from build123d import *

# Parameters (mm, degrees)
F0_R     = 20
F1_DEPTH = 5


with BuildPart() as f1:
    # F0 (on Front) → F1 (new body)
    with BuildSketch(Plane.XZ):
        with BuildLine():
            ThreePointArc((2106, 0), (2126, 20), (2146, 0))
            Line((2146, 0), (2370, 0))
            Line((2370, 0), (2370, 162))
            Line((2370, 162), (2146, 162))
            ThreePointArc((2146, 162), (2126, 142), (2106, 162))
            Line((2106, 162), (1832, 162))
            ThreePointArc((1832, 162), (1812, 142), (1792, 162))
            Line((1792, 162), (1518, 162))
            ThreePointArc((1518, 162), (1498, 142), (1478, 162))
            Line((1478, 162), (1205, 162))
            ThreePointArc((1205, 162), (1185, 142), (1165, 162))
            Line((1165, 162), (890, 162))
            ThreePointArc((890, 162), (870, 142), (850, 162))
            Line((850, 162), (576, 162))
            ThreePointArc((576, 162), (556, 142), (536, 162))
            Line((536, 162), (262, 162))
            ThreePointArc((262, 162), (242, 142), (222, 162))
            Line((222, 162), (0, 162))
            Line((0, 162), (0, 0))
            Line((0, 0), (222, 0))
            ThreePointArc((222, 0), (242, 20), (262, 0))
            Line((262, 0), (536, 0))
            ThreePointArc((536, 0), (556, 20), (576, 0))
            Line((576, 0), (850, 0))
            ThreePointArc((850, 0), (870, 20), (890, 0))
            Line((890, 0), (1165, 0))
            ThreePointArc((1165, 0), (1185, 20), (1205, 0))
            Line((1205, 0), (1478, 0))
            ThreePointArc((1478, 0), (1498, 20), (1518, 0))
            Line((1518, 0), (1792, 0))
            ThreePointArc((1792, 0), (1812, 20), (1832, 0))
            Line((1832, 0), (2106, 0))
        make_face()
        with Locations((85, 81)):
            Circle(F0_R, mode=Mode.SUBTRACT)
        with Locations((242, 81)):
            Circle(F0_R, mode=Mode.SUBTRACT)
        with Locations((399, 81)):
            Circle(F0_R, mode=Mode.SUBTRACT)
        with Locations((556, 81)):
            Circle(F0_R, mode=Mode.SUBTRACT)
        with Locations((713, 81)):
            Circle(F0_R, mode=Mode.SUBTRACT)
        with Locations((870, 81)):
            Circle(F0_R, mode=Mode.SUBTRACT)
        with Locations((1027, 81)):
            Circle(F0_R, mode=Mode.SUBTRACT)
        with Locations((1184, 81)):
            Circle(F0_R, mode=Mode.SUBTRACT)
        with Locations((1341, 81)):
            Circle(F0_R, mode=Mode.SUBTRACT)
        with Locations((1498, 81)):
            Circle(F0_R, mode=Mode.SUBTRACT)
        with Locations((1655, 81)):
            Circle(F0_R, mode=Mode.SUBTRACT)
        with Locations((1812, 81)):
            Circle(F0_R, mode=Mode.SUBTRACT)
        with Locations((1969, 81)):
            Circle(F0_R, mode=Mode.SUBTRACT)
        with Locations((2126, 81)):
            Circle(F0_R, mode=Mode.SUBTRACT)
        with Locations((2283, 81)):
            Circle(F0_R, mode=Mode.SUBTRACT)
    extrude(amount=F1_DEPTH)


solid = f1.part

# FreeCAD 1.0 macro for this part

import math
import FreeCAD as App
import Part
import Sketcher
from FreeCAD import Vector
Q = App.Units.Quantity

doc = App.newDocument("Part")
body = doc.addObject("PartDesign::Body", "Body")

# Sketch on XZ plane
sketch1 = body.newObject("Sketcher::SketchObject", "Sketch")
sketch1.AttachmentSupport = (doc.getObject("XZ_Plane"), [""])
sketch1.MapMode = "FlatFace"
sketch1.addGeometry(Part.ArcOfCircle(Part.Circle(Vector(2126, 0, 0), Vector(0, 0, 1), 20), math.radians(0), math.radians(180)), False)
sketch1.addGeometry(Part.LineSegment(Vector(2146, 0, 0), Vector(2370, 0, 0)), False)
sketch1.addGeometry(Part.LineSegment(Vector(2370, 0, 0), Vector(2370, 162, 0)), False)
sketch1.addGeometry(Part.LineSegment(Vector(2370, 162, 0), Vector(2146, 162, 0)), False)
sketch1.addGeometry(Part.ArcOfCircle(Part.Circle(Vector(2126, 162, 0), Vector(0, 0, 1), 20), math.radians(180), math.radians(360)), False)
sketch1.addGeometry(Part.LineSegment(Vector(2106, 162, 0), Vector(1832, 162, 0)), False)
sketch1.addGeometry(Part.ArcOfCircle(Part.Circle(Vector(1812, 162, 0), Vector(0, 0, 1), 20), math.radians(180), math.radians(360)), False)
sketch1.addGeometry(Part.LineSegment(Vector(1792, 162, 0), Vector(1518, 162, 0)), False)
sketch1.addGeometry(Part.ArcOfCircle(Part.Circle(Vector(1498, 162, 0), Vector(0, 0, 1), 20), math.radians(180), math.radians(360)), False)
sketch1.addGeometry(Part.LineSegment(Vector(1478, 162, 0), Vector(1205, 162, 0)), False)
sketch1.addGeometry(Part.ArcOfCircle(Part.Circle(Vector(1185, 162, 0), Vector(0, 0, 1), 20), math.radians(180), math.radians(360)), False)
sketch1.addGeometry(Part.LineSegment(Vector(1165, 162, 0), Vector(890, 162, 0)), False)
sketch1.addGeometry(Part.ArcOfCircle(Part.Circle(Vector(870, 162, 0), Vector(0, 0, 1), 20), math.radians(180), math.radians(360)), False)
sketch1.addGeometry(Part.LineSegment(Vector(850, 162, 0), Vector(576, 162, 0)), False)
sketch1.addGeometry(Part.ArcOfCircle(Part.Circle(Vector(556, 162, 0), Vector(0, 0, 1), 20), math.radians(180), math.radians(360)), False)
sketch1.addGeometry(Part.LineSegment(Vector(536, 162, 0), Vector(262, 162, 0)), False)
sketch1.addGeometry(Part.ArcOfCircle(Part.Circle(Vector(242, 162, 0), Vector(0, 0, 1), 20), math.radians(180), math.radians(360)), False)
sketch1.addGeometry(Part.LineSegment(Vector(222, 162, 0), Vector(0, 162, 0)), False)
sketch1.addGeometry(Part.LineSegment(Vector(0, 162, 0), Vector(0, 0, 0)), False)
sketch1.addGeometry(Part.LineSegment(Vector(0, 0, 0), Vector(222, 0, 0)), False)
sketch1.addGeometry(Part.ArcOfCircle(Part.Circle(Vector(242, 0, 0), Vector(0, 0, 1), 20), math.radians(0), math.radians(180)), False)
sketch1.addGeometry(Part.LineSegment(Vector(262, 0, 0), Vector(536, 0, 0)), False)
sketch1.addGeometry(Part.ArcOfCircle(Part.Circle(Vector(556, 0, 0), Vector(0, 0, 1), 20), math.radians(0), math.radians(180)), False)
sketch1.addGeometry(Part.LineSegment(Vector(576, 0, 0), Vector(850, 0, 0)), False)
sketch1.addGeometry(Part.ArcOfCircle(Part.Circle(Vector(870, 0, 0), Vector(0, 0, 1), 20), math.radians(0), math.radians(180)), False)
sketch1.addGeometry(Part.LineSegment(Vector(890, 0, 0), Vector(1165, 0, 0)), False)
sketch1.addGeometry(Part.ArcOfCircle(Part.Circle(Vector(1185, 0, 0), Vector(0, 0, 1), 20), math.radians(0), math.radians(180)), False)
sketch1.addGeometry(Part.LineSegment(Vector(1205, 0, 0), Vector(1478, 0, 0)), False)
sketch1.addGeometry(Part.ArcOfCircle(Part.Circle(Vector(1498, 0, 0), Vector(0, 0, 1), 20), math.radians(0), math.radians(180)), False)
sketch1.addGeometry(Part.LineSegment(Vector(1518, 0, 0), Vector(1792, 0, 0)), False)
sketch1.addGeometry(Part.ArcOfCircle(Part.Circle(Vector(1812, 0, 0), Vector(0, 0, 1), 20), math.radians(0), math.radians(180)), False)
sketch1.addGeometry(Part.LineSegment(Vector(1832, 0, 0), Vector(2106, 0, 0)), False)
sketch1.addGeometry(Part.Circle(Vector(85, 81, 0), Vector(0, 0, 1), 20), False)
sketch1.addGeometry(Part.Circle(Vector(242, 81, 0), Vector(0, 0, 1), 20), False)
sketch1.addGeometry(Part.Circle(Vector(399, 81, 0), Vector(0, 0, 1), 20), False)
sketch1.addGeometry(Part.Circle(Vector(556, 81, 0), Vector(0, 0, 1), 20), False)
sketch1.addGeometry(Part.Circle(Vector(713, 81, 0), Vector(0, 0, 1), 20), False)
sketch1.addGeometry(Part.Circle(Vector(870, 81, 0), Vector(0, 0, 1), 20), False)
sketch1.addGeometry(Part.Circle(Vector(1027, 81, 0), Vector(0, 0, 1), 20), False)
sketch1.addGeometry(Part.Circle(Vector(1184, 81, 0), Vector(0, 0, 1), 20), False)
sketch1.addGeometry(Part.Circle(Vector(1341, 81, 0), Vector(0, 0, 1), 20), False)
sketch1.addGeometry(Part.Circle(Vector(1498, 81, 0), Vector(0, 0, 1), 20), False)
sketch1.addGeometry(Part.Circle(Vector(1655, 81, 0), Vector(0, 0, 1), 20), False)
sketch1.addGeometry(Part.Circle(Vector(1812, 81, 0), Vector(0, 0, 1), 20), False)
sketch1.addGeometry(Part.Circle(Vector(1969, 81, 0), Vector(0, 0, 1), 20), False)
sketch1.addGeometry(Part.Circle(Vector(2126, 81, 0), Vector(0, 0, 1), 20), False)
sketch1.addGeometry(Part.Circle(Vector(2283, 81, 0), Vector(0, 0, 1), 20), False)
sketch1.addConstraint(Sketcher.Constraint("Coincident", 0, 1, 1, 1))
sketch1.addConstraint(Sketcher.Constraint("Coincident", 1, 2, 2, 1))
sketch1.addConstraint(Sketcher.Constraint("Coincident", 2, 2, 3, 1))
sketch1.addConstraint(Sketcher.Constraint("Coincident", 3, 2, 4, 2))
sketch1.addConstraint(Sketcher.Constraint("Coincident", 4, 1, 5, 1))
sketch1.addConstraint(Sketcher.Constraint("Coincident", 5, 2, 6, 2))
sketch1.addConstraint(Sketcher.Constraint("Coincident", 6, 1, 7, 1))
sketch1.addConstraint(Sketcher.Constraint("Coincident", 7, 2, 8, 2))
sketch1.addConstraint(Sketcher.Constraint("Coincident", 8, 1, 9, 1))
sketch1.addConstraint(Sketcher.Constraint("Coincident", 9, 2, 10, 2))
sketch1.addConstraint(Sketcher.Constraint("Coincident", 10, 1, 11, 1))
sketch1.addConstraint(Sketcher.Constraint("Coincident", 11, 2, 12, 2))
sketch1.addConstraint(Sketcher.Constraint("Coincident", 12, 1, 13, 1))
sketch1.addConstraint(Sketcher.Constraint("Coincident", 13, 2, 14, 2))
sketch1.addConstraint(Sketcher.Constraint("Coincident", 14, 1, 15, 1))
sketch1.addConstraint(Sketcher.Constraint("Coincident", 15, 2, 16, 2))
sketch1.addConstraint(Sketcher.Constraint("Coincident", 16, 1, 17, 1))
sketch1.addConstraint(Sketcher.Constraint("Coincident", 17, 2, 18, 1))
sketch1.addConstraint(Sketcher.Constraint("Coincident", 18, 2, 19, 1))
sketch1.addConstraint(Sketcher.Constraint("Coincident", 19, 2, 20, 2))
sketch1.addConstraint(Sketcher.Constraint("Coincident", 20, 1, 21, 1))
sketch1.addConstraint(Sketcher.Constraint("Coincident", 21, 2, 22, 2))
sketch1.addConstraint(Sketcher.Constraint("Coincident", 22, 1, 23, 1))
sketch1.addConstraint(Sketcher.Constraint("Coincident", 23, 2, 24, 2))
sketch1.addConstraint(Sketcher.Constraint("Coincident", 24, 1, 25, 1))
sketch1.addConstraint(Sketcher.Constraint("Coincident", 25, 2, 26, 2))
sketch1.addConstraint(Sketcher.Constraint("Coincident", 26, 1, 27, 1))
sketch1.addConstraint(Sketcher.Constraint("Coincident", 27, 2, 28, 2))
sketch1.addConstraint(Sketcher.Constraint("Coincident", 28, 1, 29, 1))
sketch1.addConstraint(Sketcher.Constraint("Coincident", 29, 2, 30, 2))
sketch1.addConstraint(Sketcher.Constraint("Coincident", 30, 1, 31, 1))
sketch1.addConstraint(Sketcher.Constraint("Coincident", 31, 2, 0, 2))
sketch1.addConstraint(Sketcher.Constraint("Horizontal", 1))
sketch1.addConstraint(Sketcher.Constraint("Vertical", 2))
sketch1.addConstraint(Sketcher.Constraint("Horizontal", 3))
sketch1.addConstraint(Sketcher.Constraint("Horizontal", 5))
sketch1.addConstraint(Sketcher.Constraint("Horizontal", 7))
sketch1.addConstraint(Sketcher.Constraint("Horizontal", 9))
sketch1.addConstraint(Sketcher.Constraint("Horizontal", 11))
sketch1.addConstraint(Sketcher.Constraint("Horizontal", 13))
sketch1.addConstraint(Sketcher.Constraint("Horizontal", 15))
sketch1.addConstraint(Sketcher.Constraint("Horizontal", 17))
sketch1.addConstraint(Sketcher.Constraint("Vertical", 18))
sketch1.addConstraint(Sketcher.Constraint("Horizontal", 19))
sketch1.addConstraint(Sketcher.Constraint("Horizontal", 21))
sketch1.addConstraint(Sketcher.Constraint("Horizontal", 23))
sketch1.addConstraint(Sketcher.Constraint("Horizontal", 25))
sketch1.addConstraint(Sketcher.Constraint("Horizontal", 27))
sketch1.addConstraint(Sketcher.Constraint("Horizontal", 29))
sketch1.addConstraint(Sketcher.Constraint("Horizontal", 31))
sketch1.addConstraint(Sketcher.Constraint("Coincident", 18, 2, -1, 1))
sketch1.addConstraint(Sketcher.Constraint("Equal", 0, 4))
sketch1.addConstraint(Sketcher.Constraint("Equal", 4, 6))
sketch1.addConstraint(Sketcher.Constraint("Equal", 6, 8))
sketch1.addConstraint(Sketcher.Constraint("Equal", 8, 10))
sketch1.addConstraint(Sketcher.Constraint("Equal", 10, 12))
sketch1.addConstraint(Sketcher.Constraint("Equal", 12, 14))
sketch1.addConstraint(Sketcher.Constraint("Equal", 14, 16))
sketch1.addConstraint(Sketcher.Constraint("Equal", 16, 20))
sketch1.addConstraint(Sketcher.Constraint("Equal", 20, 22))
sketch1.addConstraint(Sketcher.Constraint("Equal", 22, 24))
sketch1.addConstraint(Sketcher.Constraint("Equal", 24, 26))
sketch1.addConstraint(Sketcher.Constraint("Equal", 26, 28))
sketch1.addConstraint(Sketcher.Constraint("Equal", 28, 30))
sketch1.addConstraint(Sketcher.Constraint("Equal", 30, 32))
sketch1.addConstraint(Sketcher.Constraint("Equal", 32, 33))
sketch1.addConstraint(Sketcher.Constraint("Equal", 33, 34))
sketch1.addConstraint(Sketcher.Constraint("Equal", 34, 35))
sketch1.addConstraint(Sketcher.Constraint("Equal", 35, 36))
sketch1.addConstraint(Sketcher.Constraint("Equal", 36, 37))
sketch1.addConstraint(Sketcher.Constraint("Equal", 37, 38))
sketch1.addConstraint(Sketcher.Constraint("Equal", 38, 39))
sketch1.addConstraint(Sketcher.Constraint("Equal", 39, 40))
sketch1.addConstraint(Sketcher.Constraint("Equal", 40, 41))
sketch1.addConstraint(Sketcher.Constraint("Equal", 41, 42))
sketch1.addConstraint(Sketcher.Constraint("Equal", 42, 43))
sketch1.addConstraint(Sketcher.Constraint("Equal", 43, 44))
sketch1.addConstraint(Sketcher.Constraint("Equal", 44, 45))
sketch1.addConstraint(Sketcher.Constraint("Equal", 45, 46))
sketch1.addConstraint(Sketcher.Constraint("PointOnObject", 0, 3, -1))
sketch1.addConstraint(Sketcher.Constraint("PointOnObject", 20, 3, -1))
sketch1.addConstraint(Sketcher.Constraint("PointOnObject", 22, 3, -1))
sketch1.addConstraint(Sketcher.Constraint("PointOnObject", 24, 3, -1))
sketch1.addConstraint(Sketcher.Constraint("PointOnObject", 26, 3, -1))
sketch1.addConstraint(Sketcher.Constraint("PointOnObject", 28, 3, -1))
sketch1.addConstraint(Sketcher.Constraint("PointOnObject", 30, 3, -1))
sketch1.addConstraint(Sketcher.Constraint("PointOnObject", 0, 1, -1))
sketch1.addConstraint(Sketcher.Constraint("PointOnObject", 20, 1, -1))
sketch1.addConstraint(Sketcher.Constraint("PointOnObject", 22, 1, -1))
sketch1.addConstraint(Sketcher.Constraint("PointOnObject", 24, 1, -1))
sketch1.addConstraint(Sketcher.Constraint("PointOnObject", 26, 1, -1))
sketch1.addConstraint(Sketcher.Constraint("PointOnObject", 28, 1, -1))
sketch1.addConstraint(Sketcher.Constraint("PointOnObject", 30, 1, -1))
sketch1.addConstraint(Sketcher.Constraint("Horizontal", 4, 3, 6, 3))
sketch1.addConstraint(Sketcher.Constraint("Horizontal", 6, 3, 8, 3))
sketch1.addConstraint(Sketcher.Constraint("Horizontal", 8, 3, 10, 3))
sketch1.addConstraint(Sketcher.Constraint("Horizontal", 10, 3, 12, 3))
sketch1.addConstraint(Sketcher.Constraint("Horizontal", 12, 3, 14, 3))
sketch1.addConstraint(Sketcher.Constraint("Horizontal", 14, 3, 16, 3))
sketch1.addConstraint(Sketcher.Constraint("Horizontal", 32, 3, 33, 3))
sketch1.addConstraint(Sketcher.Constraint("Horizontal", 33, 3, 34, 3))
sketch1.addConstraint(Sketcher.Constraint("Horizontal", 34, 3, 35, 3))
sketch1.addConstraint(Sketcher.Constraint("Horizontal", 35, 3, 36, 3))
sketch1.addConstraint(Sketcher.Constraint("Horizontal", 36, 3, 37, 3))
sketch1.addConstraint(Sketcher.Constraint("Horizontal", 37, 3, 38, 3))
sketch1.addConstraint(Sketcher.Constraint("Horizontal", 38, 3, 39, 3))
sketch1.addConstraint(Sketcher.Constraint("Horizontal", 39, 3, 40, 3))
sketch1.addConstraint(Sketcher.Constraint("Horizontal", 40, 3, 41, 3))
sketch1.addConstraint(Sketcher.Constraint("Horizontal", 41, 3, 42, 3))
sketch1.addConstraint(Sketcher.Constraint("Horizontal", 42, 3, 43, 3))
sketch1.addConstraint(Sketcher.Constraint("Horizontal", 43, 3, 44, 3))
sketch1.addConstraint(Sketcher.Constraint("Horizontal", 44, 3, 45, 3))
sketch1.addConstraint(Sketcher.Constraint("Horizontal", 45, 3, 46, 3))
sketch1.addConstraint(Sketcher.Constraint("Horizontal", 16, 3, 2, 2))
sketch1.addConstraint(Sketcher.Constraint("Horizontal", 3, 2, 4, 1))
sketch1.addConstraint(Sketcher.Constraint("Horizontal", 5, 2, 6, 1))
sketch1.addConstraint(Sketcher.Constraint("Horizontal", 7, 2, 8, 1))
sketch1.addConstraint(Sketcher.Constraint("Horizontal", 9, 2, 10, 1))
sketch1.addConstraint(Sketcher.Constraint("Horizontal", 11, 2, 12, 1))
sketch1.addConstraint(Sketcher.Constraint("Horizontal", 13, 2, 14, 1))
sketch1.addConstraint(Sketcher.Constraint("Horizontal", 15, 2, 16, 1))
sketch1.addConstraint(Sketcher.Constraint("Vertical", 0, 3, 4, 3))
sketch1.addConstraint(Sketcher.Constraint("Vertical", 16, 3, 20, 3))
sketch1.addConstraint(Sketcher.Constraint("Vertical", 14, 3, 22, 3))
sketch1.addConstraint(Sketcher.Constraint("Vertical", 12, 3, 24, 3))
sketch1.addConstraint(Sketcher.Constraint("Vertical", 10, 3, 26, 3))
sketch1.addConstraint(Sketcher.Constraint("Vertical", 8, 3, 28, 3))
sketch1.addConstraint(Sketcher.Constraint("Vertical", 6, 3, 30, 3))
sketch1.addConstraint(Sketcher.Constraint("Vertical", 20, 3, 33, 3))
sketch1.addConstraint(Sketcher.Constraint("Vertical", 22, 3, 35, 3))
sketch1.addConstraint(Sketcher.Constraint("Vertical", 24, 3, 37, 3))
sketch1.addConstraint(Sketcher.Constraint("Vertical", 28, 3, 41, 3))
sketch1.addConstraint(Sketcher.Constraint("Vertical", 30, 3, 43, 3))
sketch1.addConstraint(Sketcher.Constraint("Vertical", 4, 3, 45, 3))
sketch1.addConstraint(Sketcher.Constraint("Equal", 5, 7))
sketch1.addConstraint(Sketcher.Constraint("Equal", 7, 13))
sketch1.addConstraint(Sketcher.Constraint("Equal", 13, 15))
sketch1.addConstraint(Sketcher.Constraint("Diameter", 32, Q("40 mm")))
sketch1.addConstraint(Sketcher.Constraint("DistanceX", 1, 1, 1, 2, Q("224 mm")))
sketch1.addConstraint(Sketcher.Constraint("DistanceX", 5, 2, 5, 1, Q("274 mm")))
sketch1.addConstraint(Sketcher.Constraint("DistanceX", 9, 2, 9, 1, Q("273 mm")))
sketch1.addConstraint(Sketcher.Constraint("DistanceX", 11, 2, 11, 1, Q("275 mm")))
sketch1.addConstraint(Sketcher.Constraint("DistanceX", 17, 2, 17, 1, Q("222 mm")))
sketch1.addConstraint(Sketcher.Constraint("DistanceY", 2, 1, 2, 2, Q("162 mm")))
sketch1.addConstraint(Sketcher.Constraint("DistanceX", -1, 1, 32, 3, Q("85 mm")))
sketch1.addConstraint(Sketcher.Constraint("DistanceY", -1, 1, 32, 3, Q("81 mm")))
sketch1.addConstraint(Sketcher.Constraint("DistanceX", -1, 1, 34, 3, Q("399 mm")))
sketch1.addConstraint(Sketcher.Constraint("DistanceX", -1, 1, 36, 3, Q("713 mm")))
sketch1.addConstraint(Sketcher.Constraint("DistanceX", -1, 1, 38, 3, Q("1027 mm")))
sketch1.addConstraint(Sketcher.Constraint("DistanceX", -1, 1, 39, 3, Q("1184 mm")))
sketch1.addConstraint(Sketcher.Constraint("DistanceX", -1, 1, 40, 3, Q("1341 mm")))
sketch1.addConstraint(Sketcher.Constraint("DistanceX", -1, 1, 42, 3, Q("1655 mm")))
sketch1.addConstraint(Sketcher.Constraint("DistanceX", -1, 1, 44, 3, Q("1969 mm")))
sketch1.addConstraint(Sketcher.Constraint("DistanceX", -1, 1, 46, 3, Q("2283 mm")))
pad1 = body.newObject("PartDesign::Pad", "Pad")
pad1.Profile = sketch1
pad1.Length = 5

doc.recompute()
